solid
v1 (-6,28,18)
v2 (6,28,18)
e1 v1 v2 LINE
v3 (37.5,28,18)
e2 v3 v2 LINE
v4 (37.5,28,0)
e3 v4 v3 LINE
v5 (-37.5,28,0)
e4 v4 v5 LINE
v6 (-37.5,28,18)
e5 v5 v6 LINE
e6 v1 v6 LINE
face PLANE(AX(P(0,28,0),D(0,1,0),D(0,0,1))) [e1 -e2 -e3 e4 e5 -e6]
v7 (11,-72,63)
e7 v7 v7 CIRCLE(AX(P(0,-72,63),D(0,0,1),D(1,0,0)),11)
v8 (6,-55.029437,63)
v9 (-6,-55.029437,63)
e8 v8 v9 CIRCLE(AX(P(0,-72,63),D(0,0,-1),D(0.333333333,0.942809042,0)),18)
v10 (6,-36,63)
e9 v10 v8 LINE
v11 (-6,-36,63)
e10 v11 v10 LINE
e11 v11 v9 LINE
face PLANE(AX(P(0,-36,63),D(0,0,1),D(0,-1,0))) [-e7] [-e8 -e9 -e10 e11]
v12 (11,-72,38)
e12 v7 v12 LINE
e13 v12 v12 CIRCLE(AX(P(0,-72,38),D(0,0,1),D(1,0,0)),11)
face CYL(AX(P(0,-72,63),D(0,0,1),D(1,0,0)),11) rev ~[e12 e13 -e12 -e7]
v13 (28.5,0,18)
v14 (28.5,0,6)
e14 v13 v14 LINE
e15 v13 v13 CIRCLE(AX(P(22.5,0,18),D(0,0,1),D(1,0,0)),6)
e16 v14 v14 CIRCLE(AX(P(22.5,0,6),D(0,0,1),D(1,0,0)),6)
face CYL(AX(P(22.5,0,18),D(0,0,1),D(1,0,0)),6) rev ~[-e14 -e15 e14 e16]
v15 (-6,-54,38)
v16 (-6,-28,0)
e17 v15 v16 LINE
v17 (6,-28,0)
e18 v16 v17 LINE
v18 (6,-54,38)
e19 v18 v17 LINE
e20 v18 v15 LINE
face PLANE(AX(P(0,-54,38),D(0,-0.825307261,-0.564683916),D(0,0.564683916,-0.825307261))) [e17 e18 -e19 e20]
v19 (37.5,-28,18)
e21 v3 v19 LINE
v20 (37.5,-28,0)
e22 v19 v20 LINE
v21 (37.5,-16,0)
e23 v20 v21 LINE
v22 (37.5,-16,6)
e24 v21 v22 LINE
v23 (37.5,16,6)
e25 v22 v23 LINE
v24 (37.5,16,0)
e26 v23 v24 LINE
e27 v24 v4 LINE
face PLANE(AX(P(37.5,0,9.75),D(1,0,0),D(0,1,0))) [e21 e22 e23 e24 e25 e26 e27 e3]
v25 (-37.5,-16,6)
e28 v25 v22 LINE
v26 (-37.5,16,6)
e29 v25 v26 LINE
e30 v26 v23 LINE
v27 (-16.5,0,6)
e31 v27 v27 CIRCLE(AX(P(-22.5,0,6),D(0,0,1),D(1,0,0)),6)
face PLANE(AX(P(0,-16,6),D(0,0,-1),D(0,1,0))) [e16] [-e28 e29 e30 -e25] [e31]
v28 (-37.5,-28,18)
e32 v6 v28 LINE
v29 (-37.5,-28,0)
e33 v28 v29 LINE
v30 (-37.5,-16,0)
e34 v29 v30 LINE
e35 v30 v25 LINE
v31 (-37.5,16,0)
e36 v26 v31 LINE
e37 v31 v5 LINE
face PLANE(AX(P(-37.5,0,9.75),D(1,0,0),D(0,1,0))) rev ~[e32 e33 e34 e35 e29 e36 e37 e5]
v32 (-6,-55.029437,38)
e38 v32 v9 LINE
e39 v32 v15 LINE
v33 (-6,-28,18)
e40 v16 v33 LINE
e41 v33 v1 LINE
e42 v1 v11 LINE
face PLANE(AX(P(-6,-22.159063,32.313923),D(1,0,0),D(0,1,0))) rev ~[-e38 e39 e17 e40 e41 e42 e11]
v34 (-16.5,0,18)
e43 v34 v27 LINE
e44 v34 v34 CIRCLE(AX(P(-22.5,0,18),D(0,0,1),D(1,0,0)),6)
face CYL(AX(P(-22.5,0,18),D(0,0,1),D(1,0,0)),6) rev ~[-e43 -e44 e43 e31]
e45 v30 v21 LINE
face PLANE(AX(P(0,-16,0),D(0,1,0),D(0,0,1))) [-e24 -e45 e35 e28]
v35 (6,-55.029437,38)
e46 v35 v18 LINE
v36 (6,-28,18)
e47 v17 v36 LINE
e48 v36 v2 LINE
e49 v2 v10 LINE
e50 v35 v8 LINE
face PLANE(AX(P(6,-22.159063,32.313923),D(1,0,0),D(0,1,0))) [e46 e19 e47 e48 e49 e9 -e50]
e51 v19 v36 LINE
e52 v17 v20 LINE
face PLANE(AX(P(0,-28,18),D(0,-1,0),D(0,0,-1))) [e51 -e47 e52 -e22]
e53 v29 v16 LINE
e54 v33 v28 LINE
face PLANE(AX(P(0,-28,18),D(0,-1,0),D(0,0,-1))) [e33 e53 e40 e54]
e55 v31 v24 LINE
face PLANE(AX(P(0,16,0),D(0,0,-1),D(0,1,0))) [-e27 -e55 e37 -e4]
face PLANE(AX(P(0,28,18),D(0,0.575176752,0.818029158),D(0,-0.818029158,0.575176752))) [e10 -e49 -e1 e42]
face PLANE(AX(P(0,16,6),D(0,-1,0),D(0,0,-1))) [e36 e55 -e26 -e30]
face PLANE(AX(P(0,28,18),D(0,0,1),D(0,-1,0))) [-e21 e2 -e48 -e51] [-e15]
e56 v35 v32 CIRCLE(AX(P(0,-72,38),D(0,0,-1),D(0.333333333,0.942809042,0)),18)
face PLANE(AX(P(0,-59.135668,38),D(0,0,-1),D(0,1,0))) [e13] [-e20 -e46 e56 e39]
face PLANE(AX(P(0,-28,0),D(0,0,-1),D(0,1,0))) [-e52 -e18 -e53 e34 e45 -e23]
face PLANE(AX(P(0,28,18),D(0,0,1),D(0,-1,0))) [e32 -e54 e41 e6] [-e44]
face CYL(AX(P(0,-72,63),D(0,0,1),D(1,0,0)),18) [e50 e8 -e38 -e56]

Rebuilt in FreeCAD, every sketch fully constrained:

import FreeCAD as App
import Part
import Sketcher

doc = App.newDocument("Part")
body = doc.addObject("PartDesign::Body", "Body")

# Sketch on YZ plane
sketch1 = body.newObject("Sketcher::SketchObject", "Sketch")
sketch1.AttachmentSupport = (doc.getObject("YZ_Plane"), [""])
sketch1.MapMode = "FlatFace"
sketch1.addGeometry([
    Part.LineSegment(App.Vector(-28, 18, 0), App.Vector(-28, 0, 0)),  # 0
    Part.LineSegment(App.Vector(-28, 0, 0), App.Vector(-16, 0, 0)),  # 1
    Part.LineSegment(App.Vector(-16, 0, 0), App.Vector(-16, 6, 0)),  # 2
    Part.LineSegment(App.Vector(-16, 6, 0), App.Vector(16, 6, 0)),  # 3
    Part.LineSegment(App.Vector(16, 6, 0), App.Vector(16, 0, 0)),  # 4
    Part.LineSegment(App.Vector(16, 0, 0), App.Vector(28, 0, 0)),  # 5
    Part.LineSegment(App.Vector(28, 0, 0), App.Vector(28, 18, 0)),  # 6
    Part.LineSegment(App.Vector(28, 18, 0), App.Vector(-28, 18, 0)),  # 7
], False)
sketch1.addConstraint([
    Sketcher.Constraint("Coincident", 0, 2, 1, 1),
    Sketcher.Constraint("Coincident", 1, 2, 2, 1),
    Sketcher.Constraint("Coincident", 2, 2, 3, 1),
    Sketcher.Constraint("Coincident", 3, 2, 4, 1),
    Sketcher.Constraint("Coincident", 4, 2, 5, 1),
    Sketcher.Constraint("Coincident", 5, 2, 6, 1),
    Sketcher.Constraint("Coincident", 6, 2, 7, 1),
    Sketcher.Constraint("Coincident", 7, 2, 0, 1),
    Sketcher.Constraint("Vertical", 0),
    Sketcher.Constraint("Horizontal", 1),
    Sketcher.Constraint("Vertical", 2),
    Sketcher.Constraint("Horizontal", 3),
    Sketcher.Constraint("Vertical", 4),
    Sketcher.Constraint("Horizontal", 5),
    Sketcher.Constraint("Vertical", 6),
    Sketcher.Constraint("Horizontal", 7),
    Sketcher.Constraint("Symmetric", 1, 2, 4, 2, -1, 1),
    Sketcher.Constraint("Symmetric", 0, 2, 5, 2, -2),
    Sketcher.Constraint("DistanceX", 1, 1, 1, 2, 12.0),
    Sketcher.Constraint("DistanceX", 3, 1, 3, 2, 32.0),
    Sketcher.Constraint("DistanceY", 0, 2, 0, 1, 18.0),
    Sketcher.Constraint("DistanceY", 2, 1, 2, 2, 6.0),
])
pad1 = body.newObject("PartDesign::Pad", "Pad")
pad1.Profile = sketch1
pad1.Length = 75
pad1.Midplane = True

# Sketch on XY plane
sketch2 = body.newObject("Sketcher::SketchObject", "Sketch001")
sketch2.AttachmentSupport = (doc.getObject("XY_Plane"), [""])
sketch2.MapMode = "FlatFace"
sketch2.AttachmentOffset = App.Placement(App.Vector(0, 0, 18), App.Rotation())
sketch2.addGeometry([
    Part.Circle(App.Vector(22, 0, 0), App.Vector(0, 0, 1), 6),
    Part.Circle(App.Vector(-22, 0, 0), App.Vector(0, 0, 1), 6),
], False)
sketch2.addConstraint([
    Sketcher.Constraint("Equal", 0, 1),
    Sketcher.Constraint("Symmetric", 0, 3, 1, 3, -1, 1),
    Sketcher.Constraint("PointOnObject", 0, 3, -1),
    Sketcher.Constraint("Diameter", 0, 12.0),
    Sketcher.Constraint("DistanceX", 1, 3, 0, 3, 45.0),
])
pocket1 = body.newObject("PartDesign::Pocket", "Pocket")
pocket1.Profile = sketch2
pocket1.Length = 25
body2 = doc.addObject("PartDesign::Body", "Body001")

# Sketch on XY plane
sketch3 = body2.newObject("Sketcher::SketchObject", "Sketch002")
sketch3.AttachmentSupport = (doc.getObject("XY_Plane001"), [""])
sketch3.MapMode = "FlatFace"
sketch3.AttachmentOffset = App.Placement(App.Vector(0, 0, 63), App.Rotation())
sketch3.addGeometry([
    Part.Circle(App.Vector(0, -72, 0), App.Vector(0, 0, 1), 18),
    Part.Circle(App.Vector(0, -72, 0), App.Vector(0, 0, 1), 11),
], False)
sketch3.addConstraint([
    Sketcher.Constraint("Coincident", 1, 3, 0, 3),
    Sketcher.Constraint("PointOnObject", 0, 3, -2),
    Sketcher.Constraint("Diameter", 0, 36.0),
    Sketcher.Constraint("Diameter", 1, 22.0),
    Sketcher.Constraint("DistanceY", 0, 3, -1, 1, 72.0),
])
pad2 = body2.newObject("PartDesign::Pad", "Pad001")
pad2.Profile = sketch3
pad2.Length = 25
pad2.Reversed = True
body.AllowCompound = True
doc.recompute()

boolean = body.newObject("PartDesign::Boolean", "Boolean")
boolean.Type = "Fuse"
boolean.addObjects([body2])

# Sketch on YZ plane
sketch4 = body.newObject("Sketcher::SketchObject", "Sketch003")
sketch4.AttachmentSupport = (doc.getObject("YZ_Plane"), [""])
sketch4.MapMode = "FlatFace"
sketch4.addGeometry([
    Part.LineSegment(App.Vector(-54, 38, 0), App.Vector(-28, 0, 0)),  # 0
    Part.LineSegment(App.Vector(-28, 0, 0), App.Vector(-28, 18, 0)),  # 1
    Part.LineSegment(App.Vector(-28, 18, 0), App.Vector(28, 18, 0)),  # 2
    Part.LineSegment(App.Vector(28, 18, 0), App.Vector(-36, 63, 0)),  # 3
    Part.LineSegment(App.Vector(-36, 63, 0), App.Vector(-59, 63, 0)),  # 4
    Part.LineSegment(App.Vector(-59, 63, 0), App.Vector(-59, 38, 0)),  # 5
    Part.LineSegment(App.Vector(-59, 38, 0), App.Vector(-54, 38, 0)),  # 6
], False)
sketch4.addConstraint([
    Sketcher.Constraint("Coincident", 0, 2, 1, 1),
    Sketcher.Constraint("Coincident", 1, 2, 2, 1),
    Sketcher.Constraint("Coincident", 2, 2, 3, 1),
    Sketcher.Constraint("Coincident", 3, 2, 4, 1),
    Sketcher.Constraint("Coincident", 4, 2, 5, 1),
    Sketcher.Constraint("Coincident", 5, 2, 6, 1),
    Sketcher.Constraint("Coincident", 6, 2, 0, 1),
    Sketcher.Constraint("Vertical", 1),
    Sketcher.Constraint("Horizontal", 2),
    Sketcher.Constraint("Horizontal", 4),
    Sketcher.Constraint("Vertical", 5),
    Sketcher.Constraint("Horizontal", 6),
    Sketcher.Constraint("PointOnObject", 0, 2, -1),
    Sketcher.Constraint("DistanceX", 2, 1, 2, 2, 56.0),
    Sketcher.Constraint("DistanceY", 1, 1, 1, 2, 18.0),
    Sketcher.Constraint("DistanceY", 5, 2, 5, 1, 25.0),
    Sketcher.Constraint("DistanceX", 0, 2, -1, 1, 28.0),
    Sketcher.Constraint("DistanceX", 3, 2, -1, 1, 36.0),
    Sketcher.Constraint("DistanceY", -1, 1, 3, 2, 63.0),
    Sketcher.Constraint("DistanceX", 6, 2, -1, 1, 54.0),
    Sketcher.Constraint("DistanceX", 4, 2, 4, 1, 23.135668),
])
pad3 = body.newObject("PartDesign::Pad", "Pad002")
pad3.Profile = sketch4
pad3.Length = 12
pad3.Midplane = True

doc.recompute()
